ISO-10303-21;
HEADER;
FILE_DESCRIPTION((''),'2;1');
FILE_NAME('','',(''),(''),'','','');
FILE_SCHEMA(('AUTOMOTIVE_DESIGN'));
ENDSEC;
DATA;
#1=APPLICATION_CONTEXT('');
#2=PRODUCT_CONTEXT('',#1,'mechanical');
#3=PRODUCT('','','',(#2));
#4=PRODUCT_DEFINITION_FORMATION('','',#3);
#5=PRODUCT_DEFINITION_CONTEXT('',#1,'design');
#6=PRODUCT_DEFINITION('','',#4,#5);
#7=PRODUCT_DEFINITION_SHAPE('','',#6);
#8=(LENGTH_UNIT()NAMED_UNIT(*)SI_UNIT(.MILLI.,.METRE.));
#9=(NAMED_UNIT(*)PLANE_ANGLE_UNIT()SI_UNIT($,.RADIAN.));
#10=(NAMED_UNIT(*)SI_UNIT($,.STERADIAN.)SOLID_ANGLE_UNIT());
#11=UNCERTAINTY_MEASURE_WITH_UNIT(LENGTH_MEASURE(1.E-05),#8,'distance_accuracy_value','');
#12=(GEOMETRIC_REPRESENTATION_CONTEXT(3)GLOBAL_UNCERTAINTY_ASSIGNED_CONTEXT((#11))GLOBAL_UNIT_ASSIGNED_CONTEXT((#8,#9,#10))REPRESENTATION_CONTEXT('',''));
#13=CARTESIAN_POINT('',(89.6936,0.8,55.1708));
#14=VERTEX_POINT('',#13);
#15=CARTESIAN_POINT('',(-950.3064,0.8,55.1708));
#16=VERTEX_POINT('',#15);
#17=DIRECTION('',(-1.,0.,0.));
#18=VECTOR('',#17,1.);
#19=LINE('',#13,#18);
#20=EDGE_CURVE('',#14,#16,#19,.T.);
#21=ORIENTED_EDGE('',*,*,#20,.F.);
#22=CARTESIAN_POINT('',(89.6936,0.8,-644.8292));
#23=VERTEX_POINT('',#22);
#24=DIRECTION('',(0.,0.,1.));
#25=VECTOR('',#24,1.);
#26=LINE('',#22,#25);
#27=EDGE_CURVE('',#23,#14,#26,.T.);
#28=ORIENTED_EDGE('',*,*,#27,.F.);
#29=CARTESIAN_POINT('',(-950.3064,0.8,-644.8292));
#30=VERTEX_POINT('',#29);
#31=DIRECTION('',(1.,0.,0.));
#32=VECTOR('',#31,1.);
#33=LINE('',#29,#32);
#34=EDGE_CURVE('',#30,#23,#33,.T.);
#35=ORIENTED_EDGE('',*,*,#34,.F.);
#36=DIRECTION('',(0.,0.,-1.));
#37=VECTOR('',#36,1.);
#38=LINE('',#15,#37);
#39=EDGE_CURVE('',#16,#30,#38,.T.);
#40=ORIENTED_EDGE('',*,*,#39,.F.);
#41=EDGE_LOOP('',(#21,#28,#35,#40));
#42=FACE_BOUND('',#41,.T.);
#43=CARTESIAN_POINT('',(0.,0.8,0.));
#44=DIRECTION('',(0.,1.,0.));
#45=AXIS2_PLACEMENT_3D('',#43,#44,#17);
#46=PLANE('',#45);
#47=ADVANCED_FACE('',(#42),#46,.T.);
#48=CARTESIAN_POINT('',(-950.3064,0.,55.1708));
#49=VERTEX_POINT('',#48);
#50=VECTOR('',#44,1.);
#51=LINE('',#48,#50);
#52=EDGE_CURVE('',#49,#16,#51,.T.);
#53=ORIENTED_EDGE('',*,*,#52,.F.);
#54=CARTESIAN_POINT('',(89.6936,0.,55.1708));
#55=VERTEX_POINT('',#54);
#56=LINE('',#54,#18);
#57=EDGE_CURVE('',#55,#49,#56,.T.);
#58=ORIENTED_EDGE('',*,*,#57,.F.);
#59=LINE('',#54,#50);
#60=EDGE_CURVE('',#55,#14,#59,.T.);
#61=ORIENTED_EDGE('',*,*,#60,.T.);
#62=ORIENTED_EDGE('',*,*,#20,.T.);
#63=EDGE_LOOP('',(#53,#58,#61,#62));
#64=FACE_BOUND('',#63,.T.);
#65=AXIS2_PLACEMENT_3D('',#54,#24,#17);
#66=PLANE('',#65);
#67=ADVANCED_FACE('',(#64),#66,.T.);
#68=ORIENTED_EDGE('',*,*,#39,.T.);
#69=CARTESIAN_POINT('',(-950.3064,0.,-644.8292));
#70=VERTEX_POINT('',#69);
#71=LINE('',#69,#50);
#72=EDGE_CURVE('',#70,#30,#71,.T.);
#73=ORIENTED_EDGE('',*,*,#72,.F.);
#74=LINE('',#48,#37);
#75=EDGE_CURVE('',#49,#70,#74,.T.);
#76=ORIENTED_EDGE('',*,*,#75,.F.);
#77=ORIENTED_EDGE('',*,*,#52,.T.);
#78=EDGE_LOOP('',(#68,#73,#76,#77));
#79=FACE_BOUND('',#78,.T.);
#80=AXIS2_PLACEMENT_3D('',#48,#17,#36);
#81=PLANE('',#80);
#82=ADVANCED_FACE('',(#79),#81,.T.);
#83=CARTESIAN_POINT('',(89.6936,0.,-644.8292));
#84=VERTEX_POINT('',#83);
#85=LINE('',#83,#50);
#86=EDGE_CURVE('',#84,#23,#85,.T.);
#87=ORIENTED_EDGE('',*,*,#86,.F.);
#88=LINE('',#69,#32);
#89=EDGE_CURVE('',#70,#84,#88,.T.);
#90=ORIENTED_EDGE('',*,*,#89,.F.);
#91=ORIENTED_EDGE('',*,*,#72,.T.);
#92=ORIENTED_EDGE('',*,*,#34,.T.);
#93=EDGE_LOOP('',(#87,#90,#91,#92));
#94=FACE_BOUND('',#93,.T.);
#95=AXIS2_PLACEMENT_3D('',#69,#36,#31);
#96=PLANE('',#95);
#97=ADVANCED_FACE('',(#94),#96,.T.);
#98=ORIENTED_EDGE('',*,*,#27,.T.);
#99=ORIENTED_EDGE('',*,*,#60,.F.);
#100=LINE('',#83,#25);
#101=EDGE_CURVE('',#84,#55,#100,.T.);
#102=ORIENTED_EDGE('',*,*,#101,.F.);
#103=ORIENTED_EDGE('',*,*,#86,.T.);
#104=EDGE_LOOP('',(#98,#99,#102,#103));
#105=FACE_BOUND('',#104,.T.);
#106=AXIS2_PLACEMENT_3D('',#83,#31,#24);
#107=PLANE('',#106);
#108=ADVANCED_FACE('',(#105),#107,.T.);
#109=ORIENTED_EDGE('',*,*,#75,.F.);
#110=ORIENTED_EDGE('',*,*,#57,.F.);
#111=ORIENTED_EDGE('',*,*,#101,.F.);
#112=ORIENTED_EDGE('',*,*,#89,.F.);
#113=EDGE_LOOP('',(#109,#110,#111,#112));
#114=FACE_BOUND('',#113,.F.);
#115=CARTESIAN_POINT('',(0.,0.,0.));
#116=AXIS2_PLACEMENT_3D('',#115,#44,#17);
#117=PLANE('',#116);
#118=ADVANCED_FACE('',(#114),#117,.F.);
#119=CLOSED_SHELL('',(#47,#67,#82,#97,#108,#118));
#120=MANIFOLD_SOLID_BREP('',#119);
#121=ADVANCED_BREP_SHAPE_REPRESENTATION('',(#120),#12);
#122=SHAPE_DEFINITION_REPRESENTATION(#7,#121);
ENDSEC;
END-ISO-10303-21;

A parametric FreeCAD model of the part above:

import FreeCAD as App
import Part
import Sketcher

V = App.Vector


def add_polygon(sketch, points):
    """Adds a closed chain of lines whose ends are joined by coincident constraints."""
    first, n = sketch.GeometryCount, len(points)
    for a, b in zip(points, points[1:] + points[:1]):
        sketch.addGeometry(Part.LineSegment(App.Vector(*a, 0), App.Vector(*b, 0)), False)
    for i in range(n):
        sketch.addConstraint(Sketcher.Constraint("Coincident", first + i, 2, first + (i + 1) % n, 1))

doc = App.newDocument("Part")
body = doc.addObject("PartDesign::Body", "Body")

sketch1 = doc.addObject("Sketcher::SketchObject", "Sketch")
body.addObject(sketch1)
sketch1.AttachmentSupport = (doc.XZ_Plane, [""])
sketch1.MapMode = "FlatFace"
add_polygon(sketch1, [(-950.3064, 55.1708), (89.6936, 55.1708), (89.6936, -644.8292), (-950.3064, -644.8292)])
sketch1.addConstraint(Sketcher.Constraint("Horizontal", 0))
sketch1.addConstraint(Sketcher.Constraint("Vertical", 1))
sketch1.addConstraint(Sketcher.Constraint("Horizontal", 2))
sketch1.addConstraint(Sketcher.Constraint("Vertical", 3))
sketch1.addConstraint(Sketcher.Constraint("DistanceX", 0, 1, 0, 2, 1040.0))
sketch1.addConstraint(Sketcher.Constraint("DistanceY", 1, 2, 1, 1, 700.0))
sketch1.addConstraint(Sketcher.Constraint("DistanceX", -1, 1, 0, 2, 89.6936))
sketch1.addConstraint(Sketcher.Constraint("DistanceY", -1, 1, 0, 2, 55.1708))
pad1 = doc.addObject("PartDesign::Pad", "Pad")
body.addObject(pad1)
pad1.Profile = sketch1
pad1.Length = 0.8
pad1.Reversed = True

doc.recompute()
